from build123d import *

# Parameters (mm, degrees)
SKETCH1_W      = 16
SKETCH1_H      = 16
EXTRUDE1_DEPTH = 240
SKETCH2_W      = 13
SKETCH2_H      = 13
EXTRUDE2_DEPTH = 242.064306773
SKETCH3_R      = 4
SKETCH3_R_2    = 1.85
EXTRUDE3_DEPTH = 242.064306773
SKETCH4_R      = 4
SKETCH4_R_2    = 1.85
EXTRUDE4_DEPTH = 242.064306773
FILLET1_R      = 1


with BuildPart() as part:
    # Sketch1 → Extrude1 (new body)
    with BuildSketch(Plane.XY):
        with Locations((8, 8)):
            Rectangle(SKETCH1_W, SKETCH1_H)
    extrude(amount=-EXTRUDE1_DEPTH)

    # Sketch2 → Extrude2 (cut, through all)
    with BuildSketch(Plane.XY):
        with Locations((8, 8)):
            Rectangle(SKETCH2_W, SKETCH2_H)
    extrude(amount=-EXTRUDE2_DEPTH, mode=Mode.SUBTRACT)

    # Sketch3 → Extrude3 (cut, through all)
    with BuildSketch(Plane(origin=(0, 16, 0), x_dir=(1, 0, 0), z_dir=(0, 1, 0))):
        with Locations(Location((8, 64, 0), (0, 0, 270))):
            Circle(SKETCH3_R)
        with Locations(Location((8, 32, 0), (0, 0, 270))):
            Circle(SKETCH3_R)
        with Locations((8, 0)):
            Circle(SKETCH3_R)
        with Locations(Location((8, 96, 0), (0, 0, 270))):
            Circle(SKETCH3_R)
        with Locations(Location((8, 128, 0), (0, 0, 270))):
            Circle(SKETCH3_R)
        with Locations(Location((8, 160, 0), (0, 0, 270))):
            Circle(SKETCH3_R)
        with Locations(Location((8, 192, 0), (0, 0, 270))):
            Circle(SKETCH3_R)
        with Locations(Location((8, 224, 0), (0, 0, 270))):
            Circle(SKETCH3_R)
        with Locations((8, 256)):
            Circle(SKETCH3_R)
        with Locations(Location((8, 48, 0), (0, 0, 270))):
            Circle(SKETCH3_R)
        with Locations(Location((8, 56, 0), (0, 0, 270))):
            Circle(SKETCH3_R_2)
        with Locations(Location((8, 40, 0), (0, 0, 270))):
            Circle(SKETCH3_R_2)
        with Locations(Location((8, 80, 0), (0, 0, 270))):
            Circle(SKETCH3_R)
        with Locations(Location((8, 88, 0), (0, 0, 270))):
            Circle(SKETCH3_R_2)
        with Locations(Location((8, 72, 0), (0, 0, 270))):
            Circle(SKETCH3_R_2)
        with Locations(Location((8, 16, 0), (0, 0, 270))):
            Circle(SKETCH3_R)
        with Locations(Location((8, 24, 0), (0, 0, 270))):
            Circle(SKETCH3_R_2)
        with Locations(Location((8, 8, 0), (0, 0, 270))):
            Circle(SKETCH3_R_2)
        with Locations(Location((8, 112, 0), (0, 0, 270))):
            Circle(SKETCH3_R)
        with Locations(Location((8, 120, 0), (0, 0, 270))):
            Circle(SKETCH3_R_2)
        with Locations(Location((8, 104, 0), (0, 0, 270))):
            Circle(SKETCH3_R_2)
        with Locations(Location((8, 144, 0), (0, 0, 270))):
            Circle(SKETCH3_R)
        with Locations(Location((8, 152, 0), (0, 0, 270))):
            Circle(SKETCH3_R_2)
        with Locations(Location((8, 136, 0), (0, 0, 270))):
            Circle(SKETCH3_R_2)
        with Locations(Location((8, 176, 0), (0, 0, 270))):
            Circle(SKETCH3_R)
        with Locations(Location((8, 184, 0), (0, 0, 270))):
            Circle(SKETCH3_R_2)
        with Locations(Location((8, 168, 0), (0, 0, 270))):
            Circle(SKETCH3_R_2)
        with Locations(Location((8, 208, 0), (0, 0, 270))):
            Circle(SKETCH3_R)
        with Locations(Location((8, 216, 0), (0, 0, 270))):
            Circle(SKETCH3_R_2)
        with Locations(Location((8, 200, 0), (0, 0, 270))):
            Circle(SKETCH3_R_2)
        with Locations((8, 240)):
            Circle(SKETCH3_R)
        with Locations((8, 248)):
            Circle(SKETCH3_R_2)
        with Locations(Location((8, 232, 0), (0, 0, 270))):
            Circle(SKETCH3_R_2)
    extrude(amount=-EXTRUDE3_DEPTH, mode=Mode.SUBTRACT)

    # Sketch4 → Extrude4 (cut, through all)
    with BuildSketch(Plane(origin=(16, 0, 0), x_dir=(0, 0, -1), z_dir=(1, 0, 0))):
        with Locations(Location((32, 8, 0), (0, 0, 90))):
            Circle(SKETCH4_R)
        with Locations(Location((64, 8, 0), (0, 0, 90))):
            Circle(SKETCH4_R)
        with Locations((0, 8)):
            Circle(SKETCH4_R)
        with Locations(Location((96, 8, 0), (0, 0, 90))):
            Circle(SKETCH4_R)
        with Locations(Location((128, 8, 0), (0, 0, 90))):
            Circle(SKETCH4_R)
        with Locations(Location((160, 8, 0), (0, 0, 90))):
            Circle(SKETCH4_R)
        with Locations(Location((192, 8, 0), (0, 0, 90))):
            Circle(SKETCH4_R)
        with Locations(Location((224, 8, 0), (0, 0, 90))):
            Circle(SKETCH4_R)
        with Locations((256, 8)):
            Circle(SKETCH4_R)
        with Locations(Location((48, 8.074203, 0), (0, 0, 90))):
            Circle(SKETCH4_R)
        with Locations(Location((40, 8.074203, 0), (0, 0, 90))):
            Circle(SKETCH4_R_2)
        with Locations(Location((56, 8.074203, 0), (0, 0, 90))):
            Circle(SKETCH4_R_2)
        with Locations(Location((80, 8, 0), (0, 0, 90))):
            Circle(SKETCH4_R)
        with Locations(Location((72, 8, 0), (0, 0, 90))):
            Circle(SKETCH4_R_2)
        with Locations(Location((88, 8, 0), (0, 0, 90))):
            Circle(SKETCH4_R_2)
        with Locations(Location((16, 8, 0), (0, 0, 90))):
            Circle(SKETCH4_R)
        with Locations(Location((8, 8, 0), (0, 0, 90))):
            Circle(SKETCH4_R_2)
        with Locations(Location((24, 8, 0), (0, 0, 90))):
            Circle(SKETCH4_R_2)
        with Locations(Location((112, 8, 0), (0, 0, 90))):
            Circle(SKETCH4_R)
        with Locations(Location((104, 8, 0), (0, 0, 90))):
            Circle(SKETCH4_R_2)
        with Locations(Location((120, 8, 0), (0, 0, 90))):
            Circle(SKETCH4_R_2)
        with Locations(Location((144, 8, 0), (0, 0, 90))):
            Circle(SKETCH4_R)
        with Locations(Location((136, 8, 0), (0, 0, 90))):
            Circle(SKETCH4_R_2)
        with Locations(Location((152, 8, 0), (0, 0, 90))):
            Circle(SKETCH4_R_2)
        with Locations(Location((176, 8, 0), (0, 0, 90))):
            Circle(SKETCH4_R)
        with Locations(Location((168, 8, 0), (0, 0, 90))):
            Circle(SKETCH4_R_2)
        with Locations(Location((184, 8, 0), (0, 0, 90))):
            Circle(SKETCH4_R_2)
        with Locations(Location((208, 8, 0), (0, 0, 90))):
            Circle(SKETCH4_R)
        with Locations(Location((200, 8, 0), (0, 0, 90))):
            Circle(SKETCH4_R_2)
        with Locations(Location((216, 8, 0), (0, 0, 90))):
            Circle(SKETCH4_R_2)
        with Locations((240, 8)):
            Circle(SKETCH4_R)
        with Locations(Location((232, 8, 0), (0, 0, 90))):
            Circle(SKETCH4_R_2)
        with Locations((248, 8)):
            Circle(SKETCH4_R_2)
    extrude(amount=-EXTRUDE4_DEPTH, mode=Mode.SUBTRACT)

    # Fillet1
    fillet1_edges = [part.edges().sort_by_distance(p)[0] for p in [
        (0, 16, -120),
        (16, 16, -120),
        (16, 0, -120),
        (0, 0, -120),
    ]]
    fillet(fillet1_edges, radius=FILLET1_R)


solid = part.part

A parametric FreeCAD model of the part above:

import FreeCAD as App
import Part
import Sketcher
from FreeCAD import Vector
Q = App.Units.Quantity


def edges_at(feature, points):
    """Names of the edges that pass closest to the given points."""
    edges = feature.Shape.Edges
    near = lambda p: min(range(len(edges)), key=lambda i: edges[i].distToShape(Part.Vertex(*p))[0])
    return sorted({f"Edge{near(p) + 1}" for p in points})

doc = App.newDocument("Part")
body = doc.addObject("PartDesign::Body", "Body")

# Sketch on XY plane
sketch1 = doc.addObject("Sketcher::SketchObject", "Sketch")
body.addObject(sketch1)
sketch1.AttachmentSupport = (doc.XY_Plane, [""])
sketch1.MapMode = "FlatFace"
sketch1.addGeometry(Part.LineSegment(Vector(0, 16, 0), Vector(0, 0, 0)), False)
sketch1.addGeometry(Part.LineSegment(Vector(0, 0, 0), Vector(16, 0, 0)), False)
sketch1.addGeometry(Part.LineSegment(Vector(16, 0, 0), Vector(16, 16, 0)), False)
sketch1.addGeometry(Part.LineSegment(Vector(16, 16, 0), Vector(0, 16, 0)), False)
sketch1.addConstraint(Sketcher.Constraint("Coincident", 0, 2, 1, 1))
sketch1.addConstraint(Sketcher.Constraint("Coincident", 1, 2, 2, 1))
sketch1.addConstraint(Sketcher.Constraint("Coincident", 2, 2, 3, 1))
sketch1.addConstraint(Sketcher.Constraint("Coincident", 3, 2, 0, 1))
sketch1.addConstraint(Sketcher.Constraint("Vertical", 0))
sketch1.addConstraint(Sketcher.Constraint("Horizontal", 1))
sketch1.addConstraint(Sketcher.Constraint("Vertical", 2))
sketch1.addConstraint(Sketcher.Constraint("Horizontal", 3))
sketch1.addConstraint(Sketcher.Constraint("Coincident", 0, 2, -1, 1))
sketch1.addConstraint(Sketcher.Constraint("Equal", 3, 0))
sketch1.addConstraint(Sketcher.Constraint("DistanceX", 1, 1, 1, 2, Q("16 mm")))
pad1 = doc.addObject("PartDesign::Pad", "Pad")
body.addObject(pad1)
pad1.Profile = sketch1
pad1.Length = 240
pad1.Reversed = True

# Sketch on XY plane
sketch2 = doc.addObject("Sketcher::SketchObject", "Sketch001")
body.addObject(sketch2)
sketch2.AttachmentSupport = (doc.XY_Plane, [""])
sketch2.MapMode = "FlatFace"
sketch2.addGeometry(Part.LineSegment(Vector(2, 14, 0), Vector(2, 2, 0)), False)
sketch2.addGeometry(Part.LineSegment(Vector(2, 2, 0), Vector(14, 2, 0)), False)
sketch2.addGeometry(Part.LineSegment(Vector(14, 2, 0), Vector(14, 14, 0)), False)
sketch2.addGeometry(Part.LineSegment(Vector(14, 14, 0), Vector(2, 14, 0)), False)
sketch2.addConstraint(Sketcher.Constraint("Coincident", 0, 2, 1, 1))
sketch2.addConstraint(Sketcher.Constraint("Coincident", 1, 2, 2, 1))
sketch2.addConstraint(Sketcher.Constraint("Coincident", 2, 2, 3, 1))
sketch2.addConstraint(Sketcher.Constraint("Coincident", 3, 2, 0, 1))
sketch2.addConstraint(Sketcher.Constraint("Vertical", 0))
sketch2.addConstraint(Sketcher.Constraint("Horizontal", 1))
sketch2.addConstraint(Sketcher.Constraint("Vertical", 2))
sketch2.addConstraint(Sketcher.Constraint("Horizontal", 3))
sketch2.addConstraint(Sketcher.Constraint("Equal", 3, 0))
sketch2.addConstraint(Sketcher.Constraint("DistanceX", 1, 1, 1, 2, Q("13 mm")))
sketch2.addConstraint(Sketcher.Constraint("DistanceX", -1, 1, 0, 2, Q("1.5 mm")))
sketch2.addConstraint(Sketcher.Constraint("DistanceY", -1, 1, 0, 2, Q("1.5 mm")))
pocket1 = doc.addObject("PartDesign::Pocket", "Pocket")
body.addObject(pocket1)
pocket1.Profile = sketch2
pocket1.Type = "ThroughAll"

# Sketch on XZ plane
sketch3 = doc.addObject("Sketcher::SketchObject", "Sketch002")
body.addObject(sketch3)
sketch3.AttachmentSupport = (doc.XZ_Plane, [""])
sketch3.MapMode = "FlatFace"
sketch3.AttachmentOffset = App.Placement(Vector(0, 0, -16), App.Rotation())
sketch3.addGeometry(Part.Circle(Vector(8, -64, 0), Vector(0, 0, 1), 4), False)
sketch3.addGeometry(Part.Circle(Vector(8, -32, 0), Vector(0, 0, 1), 4), False)
sketch3.addGeometry(Part.Circle(Vector(8, 0, 0), Vector(0, 0, 1), 4), False)
sketch3.addGeometry(Part.Circle(Vector(8, -96, 0), Vector(0, 0, 1), 4), False)
sketch3.addGeometry(Part.Circle(Vector(8, -128, 0), Vector(0, 0, 1), 4), False)
sketch3.addGeometry(Part.Circle(Vector(8, -160, 0), Vector(0, 0, 1), 4), False)
sketch3.addGeometry(Part.Circle(Vector(8, -192, 0), Vector(0, 0, 1), 4), False)
sketch3.addGeometry(Part.Circle(Vector(8, -224, 0), Vector(0, 0, 1), 4), False)
sketch3.addGeometry(Part.Circle(Vector(8, -256, 0), Vector(0, 0, 1), 4), False)
sketch3.addGeometry(Part.Circle(Vector(8, -48, 0), Vector(0, 0, 1), 4), False)
sketch3.addGeometry(Part.Circle(Vector(8, -56, 0), Vector(0, 0, 1), 1.9), False)
sketch3.addGeometry(Part.Circle(Vector(8, -40, 0), Vector(0, 0, 1), 1.9), False)
sketch3.addGeometry(Part.Circle(Vector(8, -80, 0), Vector(0, 0, 1), 4), False)
sketch3.addGeometry(Part.Circle(Vector(8, -88, 0), Vector(0, 0, 1), 1.9), False)
sketch3.addGeometry(Part.Circle(Vector(8, -72, 0), Vector(0, 0, 1), 1.9), False)
sketch3.addGeometry(Part.Circle(Vector(8, -16, 0), Vector(0, 0, 1), 4), False)
sketch3.addGeometry(Part.Circle(Vector(8, -24, 0), Vector(0, 0, 1), 1.9), False)
sketch3.addGeometry(Part.Circle(Vector(8, -8, 0), Vector(0, 0, 1), 1.9), False)
sketch3.addGeometry(Part.Circle(Vector(8, -112, 0), Vector(0, 0, 1), 4), False)
sketch3.addGeometry(Part.Circle(Vector(8, -120, 0), Vector(0, 0, 1), 1.9), False)
sketch3.addGeometry(Part.Circle(Vector(8, -104, 0), Vector(0, 0, 1), 1.9), False)
sketch3.addGeometry(Part.Circle(Vector(8, -144, 0), Vector(0, 0, 1), 4), False)
sketch3.addGeometry(Part.Circle(Vector(8, -152, 0), Vector(0, 0, 1), 1.9), False)
sketch3.addGeometry(Part.Circle(Vector(8, -136, 0), Vector(0, 0, 1), 1.9), False)
sketch3.addGeometry(Part.Circle(Vector(8, -176, 0), Vector(0, 0, 1), 4), False)
sketch3.addGeometry(Part.Circle(Vector(8, -184, 0), Vector(0, 0, 1), 1.9), False)
sketch3.addGeometry(Part.Circle(Vector(8, -168, 0), Vector(0, 0, 1), 1.9), False)
sketch3.addGeometry(Part.Circle(Vector(8, -208, 0), Vector(0, 0, 1), 4), False)
sketch3.addGeometry(Part.Circle(Vector(8, -216, 0), Vector(0, 0, 1), 1.9), False)
sketch3.addGeometry(Part.Circle(Vector(8, -200, 0), Vector(0, 0, 1), 1.9), False)
sketch3.addGeometry(Part.Circle(Vector(8, -240, 0), Vector(0, 0, 1), 4), False)
sketch3.addGeometry(Part.Circle(Vector(8, -248, 0), Vector(0, 0, 1), 1.9), False)
sketch3.addGeometry(Part.Circle(Vector(8, -232, 0), Vector(0, 0, 1), 1.9), False)
sketch3.addConstraint(Sketcher.Constraint("Equal", 0, 1))
sketch3.addConstraint(Sketcher.Constraint("Equal", 1, 2))
sketch3.addConstraint(Sketcher.Constraint("Equal", 2, 3))
sketch3.addConstraint(Sketcher.Constraint("Equal", 3, 4))
sketch3.addConstraint(Sketcher.Constraint("Equal", 4, 5))
sketch3.addConstraint(Sketcher.Constraint("Equal", 5, 6))
sketch3.addConstraint(Sketcher.Constraint("Equal", 6, 7))
sketch3.addConstraint(Sketcher.Constraint("Equal", 7, 8))
sketch3.addConstraint(Sketcher.Constraint("Equal", 8, 9))
sketch3.addConstraint(Sketcher.Constraint("Equal", 10, 11))
sketch3.addConstraint(Sketcher.Constraint("Equal", 9, 12))
sketch3.addConstraint(Sketcher.Constraint("Equal", 11, 13))
sketch3.addConstraint(Sketcher.Constraint("Equal", 13, 14))
sketch3.addConstraint(Sketcher.Constraint("Equal", 12, 15))
sketch3.addConstraint(Sketcher.Constraint("Equal", 14, 16))
sketch3.addConstraint(Sketcher.Constraint("Equal", 16, 17))
sketch3.addConstraint(Sketcher.Constraint("Equal", 15, 18))
sketch3.addConstraint(Sketcher.Constraint("Equal", 17, 19))
sketch3.addConstraint(Sketcher.Constraint("Equal", 19, 20))
sketch3.addConstraint(Sketcher.Constraint("Equal", 18, 21))
sketch3.addConstraint(Sketcher.Constraint("Equal", 20, 22))
sketch3.addConstraint(Sketcher.Constraint("Equal", 22, 23))
sketch3.addConstraint(Sketcher.Constraint("Equal", 21, 24))
sketch3.addConstraint(Sketcher.Constraint("Equal", 23, 25))
sketch3.addConstraint(Sketcher.Constraint("Equal", 25, 26))
sketch3.addConstraint(Sketcher.Constraint("Equal", 24, 27))
sketch3.addConstraint(Sketcher.Constraint("Equal", 26, 28))
sketch3.addConstraint(Sketcher.Constraint("Equal", 28, 29))
sketch3.addConstraint(Sketcher.Constraint("Equal", 27, 30))
sketch3.addConstraint(Sketcher.Constraint("Equal", 29, 31))
sketch3.addConstraint(Sketcher.Constraint("Equal", 31, 32))
sketch3.addConstraint(Sketcher.Constraint("PointOnObject", 2, 3, -1))
sketch3.addConstraint(Sketcher.Constraint("Vertical", 0, 3, 1, 3))
sketch3.addConstraint(Sketcher.Constraint("Vertical", 1, 3, 2, 3))
sketch3.addConstraint(Sketcher.Constraint("Vertical", 2, 3, 3, 3))
sketch3.addConstraint(Sketcher.Constraint("Vertical", 3, 3, 4, 3))
sketch3.addConstraint(Sketcher.Constraint("Vertical", 4, 3, 5, 3))
sketch3.addConstraint(Sketcher.Constraint("Vertical", 5, 3, 6, 3))
sketch3.addConstraint(Sketcher.Constraint("Vertical", 6, 3, 7, 3))
sketch3.addConstraint(Sketcher.Constraint("Vertical", 7, 3, 8, 3))
sketch3.addConstraint(Sketcher.Constraint("Vertical", 8, 3, 9, 3))
sketch3.addConstraint(Sketcher.Constraint("Vertical", 9, 3, 10, 3))
sketch3.addConstraint(Sketcher.Constraint("Vertical", 10, 3, 11, 3))
sketch3.addConstraint(Sketcher.Constraint("Vertical", 11, 3, 12, 3))
sketch3.addConstraint(Sketcher.Constraint("Vertical", 12, 3, 13, 3))
sketch3.addConstraint(Sketcher.Constraint("Vertical", 13, 3, 14, 3))
sketch3.addConstraint(Sketcher.Constraint("Vertical", 14, 3, 15, 3))
sketch3.addConstraint(Sketcher.Constraint("Vertical", 15, 3, 16, 3))
sketch3.addConstraint(Sketcher.Constraint("Vertical", 16, 3, 17, 3))
sketch3.addConstraint(Sketcher.Constraint("Vertical", 17, 3, 18, 3))
sketch3.addConstraint(Sketcher.Constraint("Vertical", 18, 3, 19, 3))
sketch3.addConstraint(Sketcher.Constraint("Vertical", 19, 3, 20, 3))
sketch3.addConstraint(Sketcher.Constraint("Vertical", 20, 3, 21, 3))
sketch3.addConstraint(Sketcher.Constraint("Vertical", 21, 3, 22, 3))
sketch3.addConstraint(Sketcher.Constraint("Vertical", 22, 3, 23, 3))
sketch3.addConstraint(Sketcher.Constraint("Vertical", 23, 3, 24, 3))
sketch3.addConstraint(Sketcher.Constraint("Vertical", 24, 3, 25, 3))
sketch3.addConstraint(Sketcher.Constraint("Vertical", 25, 3, 26, 3))
sketch3.addConstraint(Sketcher.Constraint("Vertical", 26, 3, 27, 3))
sketch3.addConstraint(Sketcher.Constraint("Vertical", 27, 3, 28, 3))
sketch3.addConstraint(Sketcher.Constraint("Vertical", 28, 3, 29, 3))
sketch3.addConstraint(Sketcher.Constraint("Vertical", 29, 3, 30, 3))
sketch3.addConstraint(Sketcher.Constraint("Vertical", 30, 3, 31, 3))
sketch3.addConstraint(Sketcher.Constraint("Vertical", 31, 3, 32, 3))
sketch3.addConstraint(Sketcher.Constraint("Diameter", 0, Q("8 mm")))
sketch3.addConstraint(Sketcher.Constraint("Diameter", 10, Q("3.7 mm")))
sketch3.addConstraint(Sketcher.Constraint("DistanceX", -1, 1, 0, 3, Q("8 mm")))
sketch3.addConstraint(Sketcher.Constraint("DistanceY", 0, 3, -1, 1, Q("64 mm")))
sketch3.addConstraint(Sketcher.Constraint("DistanceY", 1, 3, -1, 1, Q("32 mm")))
sketch3.addConstraint(Sketcher.Constraint("DistanceY", 3, 3, -1, 1, Q("96 mm")))
sketch3.addConstraint(Sketcher.Constraint("DistanceY", 4, 3, -1, 1, Q("128 mm")))
sketch3.addConstraint(Sketcher.Constraint("DistanceY", 5, 3, -1, 1, Q("160 mm")))
sketch3.addConstraint(Sketcher.Constraint("DistanceY", 6, 3, -1, 1, Q("192 mm")))
sketch3.addConstraint(Sketcher.Constraint("DistanceY", 7, 3, -1, 1, Q("224 mm")))
sketch3.addConstraint(Sketcher.Constraint("DistanceY", 8, 3, -1, 1, Q("256 mm")))
sketch3.addConstraint(Sketcher.Constraint("DistanceY", 9, 3, -1, 1, Q("48 mm")))
sketch3.addConstraint(Sketcher.Constraint("DistanceY", 10, 3, -1, 1, Q("56 mm")))
sketch3.addConstraint(Sketcher.Constraint("DistanceY", 11, 3, -1, 1, Q("40 mm")))
sketch3.addConstraint(Sketcher.Constraint("DistanceY", 12, 3, -1, 1, Q("80 mm")))
sketch3.addConstraint(Sketcher.Constraint("DistanceY", 13, 3, -1, 1, Q("88 mm")))
sketch3.addConstraint(Sketcher.Constraint("DistanceY", 14, 3, -1, 1, Q("72 mm")))
sketch3.addConstraint(Sketcher.Constraint("DistanceY", 15, 3, -1, 1, Q("16 mm")))
sketch3.addConstraint(Sketcher.Constraint("DistanceY", 16, 3, -1, 1, Q("24 mm")))
sketch3.addConstraint(Sketcher.Constraint("DistanceY", 17, 3, -1, 1, Q("8 mm")))
sketch3.addConstraint(Sketcher.Constraint("DistanceY", 18, 3, -1, 1, Q("112 mm")))
sketch3.addConstraint(Sketcher.Constraint("DistanceY", 19, 3, -1, 1, Q("120 mm")))
sketch3.addConstraint(Sketcher.Constraint("DistanceY", 20, 3, -1, 1, Q("104 mm")))
sketch3.addConstraint(Sketcher.Constraint("DistanceY", 21, 3, -1, 1, Q("144 mm")))
sketch3.addConstraint(Sketcher.Constraint("DistanceY", 22, 3, -1, 1, Q("152 mm")))
sketch3.addConstraint(Sketcher.Constraint("DistanceY", 23, 3, -1, 1, Q("136 mm")))
sketch3.addConstraint(Sketcher.Constraint("DistanceY", 24, 3, -1, 1, Q("176 mm")))
sketch3.addConstraint(Sketcher.Constraint("DistanceY", 25, 3, -1, 1, Q("184 mm")))
sketch3.addConstraint(Sketcher.Constraint("DistanceY", 26, 3, -1, 1, Q("168 mm")))
sketch3.addConstraint(Sketcher.Constraint("DistanceY", 27, 3, -1, 1, Q("208 mm")))
sketch3.addConstraint(Sketcher.Constraint("DistanceY", 28, 3, -1, 1, Q("216 mm")))
sketch3.addConstraint(Sketcher.Constraint("DistanceY", 29, 3, -1, 1, Q("200 mm")))
sketch3.addConstraint(Sketcher.Constraint("DistanceY", 30, 3, -1, 1, Q("240 mm")))
sketch3.addConstraint(Sketcher.Constraint("DistanceY", 31, 3, -1, 1, Q("248 mm")))
sketch3.addConstraint(Sketcher.Constraint("DistanceY", 32, 3, -1, 1, Q("232 mm")))
pocket2 = doc.addObject("PartDesign::Pocket", "Pocket001")
body.addObject(pocket2)
pocket2.Profile = sketch3
pocket2.Type = "ThroughAll"
pocket2.Reversed = True

# Sketch on YZ plane
sketch4 = doc.addObject("Sketcher::SketchObject", "Sketch003")
body.addObject(sketch4)
sketch4.AttachmentSupport = (doc.YZ_Plane, [""])
sketch4.MapMode = "FlatFace"
sketch4.AttachmentOffset = App.Placement(Vector(0, 0, 16), App.Rotation())
sketch4.addGeometry(Part.Circle(Vector(8, -32, 0), Vector(0, 0, 1), 4), False)
sketch4.addGeometry(Part.Circle(Vector(8, -64, 0), Vector(0, 0, 1), 4), False)
sketch4.addGeometry(Part.Circle(Vector(8, 0, 0), Vector(0, 0, 1), 4), False)
sketch4.addGeometry(Part.Circle(Vector(8, -96, 0), Vector(0, 0, 1), 4), False)
sketch4.addGeometry(Part.Circle(Vector(8, -128, 0), Vector(0, 0, 1), 4), False)
sketch4.addGeometry(Part.Circle(Vector(8, -160, 0), Vector(0, 0, 1), 4), False)
sketch4.addGeometry(Part.Circle(Vector(8, -192, 0), Vector(0, 0, 1), 4), False)
sketch4.addGeometry(Part.Circle(Vector(8, -224, 0), Vector(0, 0, 1), 4), False)
sketch4.addGeometry(Part.Circle(Vector(8, -256, 0), Vector(0, 0, 1), 4), False)
sketch4.addGeometry(Part.Circle(Vector(8.1, -48, 0), Vector(0, 0, 1), 4), False)
sketch4.addGeometry(Part.Circle(Vector(8.1, -40, 0), Vector(0, 0, 1), 1.9), False)
sketch4.addGeometry(Part.Circle(Vector(8.1, -56, 0), Vector(0, 0, 1), 1.9), False)
sketch4.addGeometry(Part.Circle(Vector(8, -80, 0), Vector(0, 0, 1), 4), False)
sketch4.addGeometry(Part.Circle(Vector(8, -72, 0), Vector(0, 0, 1), 1.9), False)
sketch4.addGeometry(Part.Circle(Vector(8, -88, 0), Vector(0, 0, 1), 1.9), False)
sketch4.addGeometry(Part.Circle(Vector(8, -16, 0), Vector(0, 0, 1), 4), False)
sketch4.addGeometry(Part.Circle(Vector(8, -8, 0), Vector(0, 0, 1), 1.9), False)
sketch4.addGeometry(Part.Circle(Vector(8, -24, 0), Vector(0, 0, 1), 1.9), False)
sketch4.addGeometry(Part.Circle(Vector(8, -112, 0), Vector(0, 0, 1), 4), False)
sketch4.addGeometry(Part.Circle(Vector(8, -104, 0), Vector(0, 0, 1), 1.9), False)
sketch4.addGeometry(Part.Circle(Vector(8, -120, 0), Vector(0, 0, 1), 1.9), False)
sketch4.addGeometry(Part.Circle(Vector(8, -144, 0), Vector(0, 0, 1), 4), False)
sketch4.addGeometry(Part.Circle(Vector(8, -136, 0), Vector(0, 0, 1), 1.9), False)
sketch4.addGeometry(Part.Circle(Vector(8, -152, 0), Vector(0, 0, 1), 1.9), False)
sketch4.addGeometry(Part.Circle(Vector(8, -176, 0), Vector(0, 0, 1), 4), False)
sketch4.addGeometry(Part.Circle(Vector(8, -168, 0), Vector(0, 0, 1), 1.9), False)
sketch4.addGeometry(Part.Circle(Vector(8, -184, 0), Vector(0, 0, 1), 1.9), False)
sketch4.addGeometry(Part.Circle(Vector(8, -208, 0), Vector(0, 0, 1), 4), False)
sketch4.addGeometry(Part.Circle(Vector(8, -200, 0), Vector(0, 0, 1), 1.9), False)
sketch4.addGeometry(Part.Circle(Vector(8, -216, 0), Vector(0, 0, 1), 1.9), False)
sketch4.addGeometry(Part.Circle(Vector(8, -240, 0), Vector(0, 0, 1), 4), False)
sketch4.addGeometry(Part.Circle(Vector(8, -232, 0), Vector(0, 0, 1), 1.9), False)
sketch4.addGeometry(Part.Circle(Vector(8, -248, 0), Vector(0, 0, 1), 1.9), False)
sketch4.addConstraint(Sketcher.Constraint("Equal", 0, 1))
sketch4.addConstraint(Sketcher.Constraint("Equal", 1, 2))
sketch4.addConstraint(Sketcher.Constraint("Equal", 2, 3))
sketch4.addConstraint(Sketcher.Constraint("Equal", 3, 4))
sketch4.addConstraint(Sketcher.Constraint("Equal", 4, 5))
sketch4.addConstraint(Sketcher.Constraint("Equal", 5, 6))
sketch4.addConstraint(Sketcher.Constraint("Equal", 6, 7))
sketch4.addConstraint(Sketcher.Constraint("Equal", 7, 8))
sketch4.addConstraint(Sketcher.Constraint("Equal", 8, 9))
sketch4.addConstraint(Sketcher.Constraint("Equal", 10, 11))
sketch4.addConstraint(Sketcher.Constraint("Equal", 9, 12))
sketch4.addConstraint(Sketcher.Constraint("Equal", 11, 13))
sketch4.addConstraint(Sketcher.Constraint("Equal", 13, 14))
sketch4.addConstraint(Sketcher.Constraint("Equal", 12, 15))
sketch4.addConstraint(Sketcher.Constraint("Equal", 14, 16))
sketch4.addConstraint(Sketcher.Constraint("Equal", 16, 17))
sketch4.addConstraint(Sketcher.Constraint("Equal", 15, 18))
sketch4.addConstraint(Sketcher.Constraint("Equal", 17, 19))
sketch4.addConstraint(Sketcher.Constraint("Equal", 19, 20))
sketch4.addConstraint(Sketcher.Constraint("Equal", 18, 21))
sketch4.addConstraint(Sketcher.Constraint("Equal", 20, 22))
sketch4.addConstraint(Sketcher.Constraint("Equal", 22, 23))
sketch4.addConstraint(Sketcher.Constraint("Equal", 21, 24))
sketch4.addConstraint(Sketcher.Constraint("Equal", 23, 25))
sketch4.addConstraint(Sketcher.Constraint("Equal", 25, 26))
sketch4.addConstraint(Sketcher.Constraint("Equal", 24, 27))
sketch4.addConstraint(Sketcher.Constraint("Equal", 26, 28))
sketch4.addConstraint(Sketcher.Constraint("Equal", 28, 29))
sketch4.addConstraint(Sketcher.Constraint("Equal", 27, 30))
sketch4.addConstraint(Sketcher.Constraint("Equal", 29, 31))
sketch4.addConstraint(Sketcher.Constraint("Equal", 31, 32))
sketch4.addConstraint(Sketcher.Constraint("PointOnObject", 2, 3, -1))
sketch4.addConstraint(Sketcher.Constraint("Vertical", 0, 3, 1, 3))
sketch4.addConstraint(Sketcher.Constraint("Vertical", 1, 3, 2, 3))
sketch4.addConstraint(Sketcher.Constraint("Vertical", 2, 3, 3, 3))
sketch4.addConstraint(Sketcher.Constraint("Vertical", 3, 3, 4, 3))
sketch4.addConstraint(Sketcher.Constraint("Vertical", 4, 3, 5, 3))
sketch4.addConstraint(Sketcher.Constraint("Vertical", 5, 3, 6, 3))
sketch4.addConstraint(Sketcher.Constraint("Vertical", 6, 3, 7, 3))
sketch4.addConstraint(Sketcher.Constraint("Vertical", 7, 3, 8, 3))
sketch4.addConstraint(Sketcher.Constraint("Vertical", 9, 3, 10, 3))
sketch4.addConstraint(Sketcher.Constraint("Vertical", 10, 3, 11, 3))
sketch4.addConstraint(Sketcher.Constraint("Vertical", 8, 3, 12, 3))
sketch4.addConstraint(Sketcher.Constraint("Vertical", 12, 3, 13, 3))
sketch4.addConstraint(Sketcher.Constraint("Vertical", 13, 3, 14, 3))
sketch4.addConstraint(Sketcher.Constraint("Vertical", 14, 3, 15, 3))
sketch4.addConstraint(Sketcher.Constraint("Vertical", 15, 3, 16, 3))
sketch4.addConstraint(Sketcher.Constraint("Vertical", 16, 3, 17, 3))
sketch4.addConstraint(Sketcher.Constraint("Vertical", 17, 3, 18, 3))
sketch4.addConstraint(Sketcher.Constraint("Vertical", 18, 3, 19, 3))
sketch4.addConstraint(Sketcher.Constraint("Vertical", 19, 3, 20, 3))
sketch4.addConstraint(Sketcher.Constraint("Vertical", 20, 3, 21, 3))
sketch4.addConstraint(Sketcher.Constraint("Vertical", 21, 3, 22, 3))
sketch4.addConstraint(Sketcher.Constraint("Vertical", 22, 3, 23, 3))
sketch4.addConstraint(Sketcher.Constraint("Vertical", 23, 3, 24, 3))
sketch4.addConstraint(Sketcher.Constraint("Vertical", 24, 3, 25, 3))
sketch4.addConstraint(Sketcher.Constraint("Vertical", 25, 3, 26, 3))
sketch4.addConstraint(Sketcher.Constraint("Vertical", 26, 3, 27, 3))
sketch4.addConstraint(Sketcher.Constraint("Vertical", 27, 3, 28, 3))
sketch4.addConstraint(Sketcher.Constraint("Vertical", 28, 3, 29, 3))
sketch4.addConstraint(Sketcher.Constraint("Vertical", 29, 3, 30, 3))
sketch4.addConstraint(Sketcher.Constraint("Vertical", 30, 3, 31, 3))
sketch4.addConstraint(Sketcher.Constraint("Vertical", 31, 3, 32, 3))
sketch4.addConstraint(Sketcher.Constraint("Diameter", 0, Q("8 mm")))
sketch4.addConstraint(Sketcher.Constraint("Diameter", 10, Q("3.7 mm")))
sketch4.addConstraint(Sketcher.Constraint("DistanceX", -1, 1, 0, 3, Q("8 mm")))
sketch4.addConstraint(Sketcher.Constraint("DistanceY", 0, 3, -1, 1, Q("32 mm")))
sketch4.addConstraint(Sketcher.Constraint("DistanceY", 1, 3, -1, 1, Q("64 mm")))
sketch4.addConstraint(Sketcher.Constraint("DistanceY", 3, 3, -1, 1, Q("96 mm")))
sketch4.addConstraint(Sketcher.Constraint("DistanceY", 4, 3, -1, 1, Q("128 mm")))
sketch4.addConstraint(Sketcher.Constraint("DistanceY", 5, 3, -1, 1, Q("160 mm")))
sketch4.addConstraint(Sketcher.Constraint("DistanceY", 6, 3, -1, 1, Q("192 mm")))
sketch4.addConstraint(Sketcher.Constraint("DistanceY", 7, 3, -1, 1, Q("224 mm")))
sketch4.addConstraint(Sketcher.Constraint("DistanceY", 8, 3, -1, 1, Q("256 mm")))
sketch4.addConstraint(Sketcher.Constraint("DistanceY", 9, 3, -1, 1, Q("48 mm")))
sketch4.addConstraint(Sketcher.Constraint("DistanceY", 10, 3, -1, 1, Q("40 mm")))
sketch4.addConstraint(Sketcher.Constraint("DistanceY", 11, 3, -1, 1, Q("56 mm")))
sketch4.addConstraint(Sketcher.Constraint("DistanceY", 12, 3, -1, 1, Q("80 mm")))
sketch4.addConstraint(Sketcher.Constraint("DistanceY", 13, 3, -1, 1, Q("72 mm")))
sketch4.addConstraint(Sketcher.Constraint("DistanceY", 14, 3, -1, 1, Q("88 mm")))
sketch4.addConstraint(Sketcher.Constraint("DistanceY", 15, 3, -1, 1, Q("16 mm")))
sketch4.addConstraint(Sketcher.Constraint("DistanceY", 16, 3, -1, 1, Q("8 mm")))
sketch4.addConstraint(Sketcher.Constraint("DistanceY", 17, 3, -1, 1, Q("24 mm")))
sketch4.addConstraint(Sketcher.Constraint("DistanceY", 18, 3, -1, 1, Q("112 mm")))
sketch4.addConstraint(Sketcher.Constraint("DistanceY", 19, 3, -1, 1, Q("104 mm")))
sketch4.addConstraint(Sketcher.Constraint("DistanceY", 20, 3, -1, 1, Q("120 mm")))
sketch4.addConstraint(Sketcher.Constraint("DistanceY", 21, 3, -1, 1, Q("144 mm")))
sketch4.addConstraint(Sketcher.Constraint("DistanceY", 22, 3, -1, 1, Q("136 mm")))
sketch4.addConstraint(Sketcher.Constraint("DistanceY", 23, 3, -1, 1, Q("152 mm")))
sketch4.addConstraint(Sketcher.Constraint("DistanceY", 24, 3, -1, 1, Q("176 mm")))
sketch4.addConstraint(Sketcher.Constraint("DistanceY", 25, 3, -1, 1, Q("168 mm")))
sketch4.addConstraint(Sketcher.Constraint("DistanceY", 26, 3, -1, 1, Q("184 mm")))
sketch4.addConstraint(Sketcher.Constraint("DistanceY", 27, 3, -1, 1, Q("208 mm")))
sketch4.addConstraint(Sketcher.Constraint("DistanceY", 28, 3, -1, 1, Q("200 mm")))
sketch4.addConstraint(Sketcher.Constraint("DistanceY", 29, 3, -1, 1, Q("216 mm")))
sketch4.addConstraint(Sketcher.Constraint("DistanceY", 30, 3, -1, 1, Q("240 mm")))
sketch4.addConstraint(Sketcher.Constraint("DistanceY", 31, 3, -1, 1, Q("232 mm")))
sketch4.addConstraint(Sketcher.Constraint("DistanceY", 32, 3, -1, 1, Q("248 mm")))
sketch4.addConstraint(Sketcher.Constraint("DistanceX", -1, 1, 9, 3, Q("8.074203 mm")))
pocket3 = doc.addObject("PartDesign::Pocket", "Pocket002")
body.addObject(pocket3)
pocket3.Profile = sketch4
pocket3.Type = "ThroughAll"
doc.recompute()

fillet = doc.addObject("PartDesign::Fillet", "Fillet")
body.addObject(fillet)
fillet.Base = (pocket3, edges_at(pocket3, [
    (0, 16, -120),
    (16, 16, -120),
    (16, 0, -120),
    (0, 0, -120),
]))
fillet.Radius = 1

doc.recompute()
